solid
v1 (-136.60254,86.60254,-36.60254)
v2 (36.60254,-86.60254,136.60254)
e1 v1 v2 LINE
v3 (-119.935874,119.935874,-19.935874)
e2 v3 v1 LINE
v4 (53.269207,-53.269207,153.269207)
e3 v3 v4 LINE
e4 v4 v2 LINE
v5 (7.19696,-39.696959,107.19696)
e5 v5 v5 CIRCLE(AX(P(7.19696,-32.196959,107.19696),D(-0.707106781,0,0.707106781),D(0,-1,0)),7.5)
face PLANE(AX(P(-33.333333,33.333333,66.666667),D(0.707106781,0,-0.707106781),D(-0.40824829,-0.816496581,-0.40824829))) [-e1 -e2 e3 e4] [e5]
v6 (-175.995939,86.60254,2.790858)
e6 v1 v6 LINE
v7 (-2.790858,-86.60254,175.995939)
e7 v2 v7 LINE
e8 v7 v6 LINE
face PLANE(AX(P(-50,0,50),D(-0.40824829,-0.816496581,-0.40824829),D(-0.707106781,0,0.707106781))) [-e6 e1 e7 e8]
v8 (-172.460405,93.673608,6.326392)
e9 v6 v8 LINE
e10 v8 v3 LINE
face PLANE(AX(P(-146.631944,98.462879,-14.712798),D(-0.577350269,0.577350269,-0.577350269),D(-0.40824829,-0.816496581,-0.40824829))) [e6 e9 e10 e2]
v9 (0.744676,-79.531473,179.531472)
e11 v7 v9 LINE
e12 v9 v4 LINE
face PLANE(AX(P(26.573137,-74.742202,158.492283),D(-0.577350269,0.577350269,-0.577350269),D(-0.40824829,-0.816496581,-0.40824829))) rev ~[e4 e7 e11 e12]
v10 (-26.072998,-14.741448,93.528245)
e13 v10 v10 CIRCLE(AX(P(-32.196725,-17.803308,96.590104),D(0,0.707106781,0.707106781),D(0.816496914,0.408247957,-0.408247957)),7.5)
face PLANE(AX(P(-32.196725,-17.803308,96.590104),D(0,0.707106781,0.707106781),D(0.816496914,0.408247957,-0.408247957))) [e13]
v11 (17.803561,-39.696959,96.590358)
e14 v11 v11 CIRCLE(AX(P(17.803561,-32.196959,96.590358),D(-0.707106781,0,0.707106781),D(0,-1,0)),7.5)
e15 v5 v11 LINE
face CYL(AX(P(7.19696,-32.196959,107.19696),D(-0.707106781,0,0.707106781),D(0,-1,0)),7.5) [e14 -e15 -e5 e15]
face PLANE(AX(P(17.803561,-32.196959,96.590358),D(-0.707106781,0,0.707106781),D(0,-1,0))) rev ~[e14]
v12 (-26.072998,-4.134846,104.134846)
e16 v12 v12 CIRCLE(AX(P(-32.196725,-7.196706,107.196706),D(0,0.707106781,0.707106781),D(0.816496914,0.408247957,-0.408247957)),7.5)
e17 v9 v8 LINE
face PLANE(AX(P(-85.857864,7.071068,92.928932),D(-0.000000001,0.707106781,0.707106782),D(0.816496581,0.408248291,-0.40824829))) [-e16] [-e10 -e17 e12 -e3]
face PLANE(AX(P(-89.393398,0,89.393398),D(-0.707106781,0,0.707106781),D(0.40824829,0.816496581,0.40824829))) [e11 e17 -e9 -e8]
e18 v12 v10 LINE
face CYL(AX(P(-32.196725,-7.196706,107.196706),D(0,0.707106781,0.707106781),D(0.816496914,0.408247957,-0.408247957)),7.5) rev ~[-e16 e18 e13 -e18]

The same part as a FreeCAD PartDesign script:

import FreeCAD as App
import Part
import Sketcher
from FreeCAD import Vector
Q = App.Units.Quantity


def add_polygon(sketch, points):
    """Adds a closed chain of lines whose ends are joined by coincident constraints."""
    first, n = sketch.GeometryCount, len(points)
    for a, b in zip(points, points[1:] + points[:1]):
        sketch.addGeometry(Part.LineSegment(App.Vector(*a, 0), App.Vector(*b, 0)), False)
    for i in range(n):
        sketch.addConstraint(Sketcher.Constraint("Coincident", first + i, 2, first + (i + 1) % n, 1))

doc = App.newDocument("Part")
params = doc.addObject("Spreadsheet::Sheet", "Params")
for row, (alias, value) in enumerate([
    ("pad1_length", "300 mm"),
    ("sketch2_diameter", "15 mm"),
    ("pad2_length", "15 mm"),
    ("sketch3_diameter", "15 mm"),
    ("pocket1_length", "15 mm"),
], start=1):
    params.set(f"A{row}", alias)
    params.set(f"B{row}", "=" + value)
    params.setAlias(f"B{row}", alias)

body = doc.addObject("PartDesign::Body", "Body")

# Sketch on an angled plane
sketch1 = body.newObject("Sketcher::SketchObject", "Sketch")
sketch1.Placement = App.Placement(Vector(0, -50, 50), App.Rotation(Vector(0.816496581, -0.40824829, -0.40824829), Vector(0, -0.707106781, 0.707106781), Vector(-0.577350269, -0.577350269, -0.577350269), "ZXY"))
add_polygon(sketch1, [(0, 0), (0, 56), (-9, 56), (-41, 0)])  # lines 0-3
sketch1.addConstraint(Sketcher.Constraint("Vertical", 0))
sketch1.addConstraint(Sketcher.Constraint("Horizontal", 1))
sketch1.addConstraint(Sketcher.Constraint("Horizontal", 3))
sketch1.addConstraint(Sketcher.Constraint("Coincident", 3, 2, -1, 1))
sketch1.addConstraint(Sketcher.Constraint("Angle", 2, Q("-120 deg")))
sketch1.addConstraint(Sketcher.Constraint("DistanceX", 3, 1, 3, 2, Q("40.824829 mm")))
sketch1.addConstraint(Sketcher.Constraint("Distance", 2, Q("64.32915 mm")))
pad1 = body.newObject("PartDesign::Pad", "Pad")
pad1.Profile = sketch1
pad1.setExpression("Length", "Params.pad1_length")
pad1.Midplane = True

# Sketch on an angled plane
sketch2 = body.newObject("Sketcher::SketchObject", "Sketch001")
sketch2.Placement = App.Placement(Vector(0, -50, 50), App.Rotation(Vector(1, 0, 0), Vector(0, 0.707106781, 0.707106781), Vector(0, -0.707106781, 0.707106781), "ZXY"))
sketch2.addGeometry(Part.Circle(Vector(32, 81, 0), Vector(0, 0, 1), 8), False)
sketch2.addConstraint(Sketcher.Constraint("Diameter", 0, Q("15 mm")))
sketch2.addConstraint(Sketcher.Constraint("DistanceX", -1, 1, 0, 3, Q("32.196959 mm")))
sketch2.addConstraint(Sketcher.Constraint("DistanceY", -1, 1, 0, 3, Q("80.888716 mm")))
sketch2.setExpression("Constraints[0]", "Params.sketch2_diameter")
pad2 = body.newObject("PartDesign::Pad", "Pad001")
pad2.Profile = sketch2
pad2.setExpression("Length", "Params.pad2_length")
pad2.Reversed = True

# Sketch on an angled plane
sketch3 = body.newObject("Sketcher::SketchObject", "Sketch002")
sketch3.Placement = App.Placement(Vector(-25, -50, 75), App.Rotation(Vector(-0.408247957, 0.816496914, -0.408247957), Vector(-0.577350505, -0.577349797, -0.577350505), Vector(-0.707106781, 0, 0.707106781), "ZXY"))
sketch3.addGeometry(Part.Circle(Vector(-12, -47, 0), Vector(0, 0, 1), 8), False)
sketch3.addConstraint(Sketcher.Constraint("Diameter", 0, Q("15 mm")))
sketch3.addConstraint(Sketcher.Constraint("DistanceX", 0, 3, -1, 1, Q("11.75216 mm")))
sketch3.addConstraint(Sketcher.Constraint("DistanceY", 0, 3, -1, 1, Q("47.456286 mm")))
sketch3.setExpression("Constraints[0]", "Params.sketch3_diameter")
pocket1 = body.newObject("PartDesign::Pocket", "Pocket")
pocket1.Profile = sketch3
pocket1.setExpression("Length", "Params.pocket1_length")
body2 = doc.addObject("PartDesign::Body", "Body001")
doc.recompute()

body.Placement = App.Placement(Vector(0, 0, 0), App.Rotation(Vector(0, 0, 1), 270))
boolean = body2.newObject("PartDesign::Boolean", "Boolean")
boolean.Type = "Fuse"
boolean.addObjects([body])

doc.recompute()
